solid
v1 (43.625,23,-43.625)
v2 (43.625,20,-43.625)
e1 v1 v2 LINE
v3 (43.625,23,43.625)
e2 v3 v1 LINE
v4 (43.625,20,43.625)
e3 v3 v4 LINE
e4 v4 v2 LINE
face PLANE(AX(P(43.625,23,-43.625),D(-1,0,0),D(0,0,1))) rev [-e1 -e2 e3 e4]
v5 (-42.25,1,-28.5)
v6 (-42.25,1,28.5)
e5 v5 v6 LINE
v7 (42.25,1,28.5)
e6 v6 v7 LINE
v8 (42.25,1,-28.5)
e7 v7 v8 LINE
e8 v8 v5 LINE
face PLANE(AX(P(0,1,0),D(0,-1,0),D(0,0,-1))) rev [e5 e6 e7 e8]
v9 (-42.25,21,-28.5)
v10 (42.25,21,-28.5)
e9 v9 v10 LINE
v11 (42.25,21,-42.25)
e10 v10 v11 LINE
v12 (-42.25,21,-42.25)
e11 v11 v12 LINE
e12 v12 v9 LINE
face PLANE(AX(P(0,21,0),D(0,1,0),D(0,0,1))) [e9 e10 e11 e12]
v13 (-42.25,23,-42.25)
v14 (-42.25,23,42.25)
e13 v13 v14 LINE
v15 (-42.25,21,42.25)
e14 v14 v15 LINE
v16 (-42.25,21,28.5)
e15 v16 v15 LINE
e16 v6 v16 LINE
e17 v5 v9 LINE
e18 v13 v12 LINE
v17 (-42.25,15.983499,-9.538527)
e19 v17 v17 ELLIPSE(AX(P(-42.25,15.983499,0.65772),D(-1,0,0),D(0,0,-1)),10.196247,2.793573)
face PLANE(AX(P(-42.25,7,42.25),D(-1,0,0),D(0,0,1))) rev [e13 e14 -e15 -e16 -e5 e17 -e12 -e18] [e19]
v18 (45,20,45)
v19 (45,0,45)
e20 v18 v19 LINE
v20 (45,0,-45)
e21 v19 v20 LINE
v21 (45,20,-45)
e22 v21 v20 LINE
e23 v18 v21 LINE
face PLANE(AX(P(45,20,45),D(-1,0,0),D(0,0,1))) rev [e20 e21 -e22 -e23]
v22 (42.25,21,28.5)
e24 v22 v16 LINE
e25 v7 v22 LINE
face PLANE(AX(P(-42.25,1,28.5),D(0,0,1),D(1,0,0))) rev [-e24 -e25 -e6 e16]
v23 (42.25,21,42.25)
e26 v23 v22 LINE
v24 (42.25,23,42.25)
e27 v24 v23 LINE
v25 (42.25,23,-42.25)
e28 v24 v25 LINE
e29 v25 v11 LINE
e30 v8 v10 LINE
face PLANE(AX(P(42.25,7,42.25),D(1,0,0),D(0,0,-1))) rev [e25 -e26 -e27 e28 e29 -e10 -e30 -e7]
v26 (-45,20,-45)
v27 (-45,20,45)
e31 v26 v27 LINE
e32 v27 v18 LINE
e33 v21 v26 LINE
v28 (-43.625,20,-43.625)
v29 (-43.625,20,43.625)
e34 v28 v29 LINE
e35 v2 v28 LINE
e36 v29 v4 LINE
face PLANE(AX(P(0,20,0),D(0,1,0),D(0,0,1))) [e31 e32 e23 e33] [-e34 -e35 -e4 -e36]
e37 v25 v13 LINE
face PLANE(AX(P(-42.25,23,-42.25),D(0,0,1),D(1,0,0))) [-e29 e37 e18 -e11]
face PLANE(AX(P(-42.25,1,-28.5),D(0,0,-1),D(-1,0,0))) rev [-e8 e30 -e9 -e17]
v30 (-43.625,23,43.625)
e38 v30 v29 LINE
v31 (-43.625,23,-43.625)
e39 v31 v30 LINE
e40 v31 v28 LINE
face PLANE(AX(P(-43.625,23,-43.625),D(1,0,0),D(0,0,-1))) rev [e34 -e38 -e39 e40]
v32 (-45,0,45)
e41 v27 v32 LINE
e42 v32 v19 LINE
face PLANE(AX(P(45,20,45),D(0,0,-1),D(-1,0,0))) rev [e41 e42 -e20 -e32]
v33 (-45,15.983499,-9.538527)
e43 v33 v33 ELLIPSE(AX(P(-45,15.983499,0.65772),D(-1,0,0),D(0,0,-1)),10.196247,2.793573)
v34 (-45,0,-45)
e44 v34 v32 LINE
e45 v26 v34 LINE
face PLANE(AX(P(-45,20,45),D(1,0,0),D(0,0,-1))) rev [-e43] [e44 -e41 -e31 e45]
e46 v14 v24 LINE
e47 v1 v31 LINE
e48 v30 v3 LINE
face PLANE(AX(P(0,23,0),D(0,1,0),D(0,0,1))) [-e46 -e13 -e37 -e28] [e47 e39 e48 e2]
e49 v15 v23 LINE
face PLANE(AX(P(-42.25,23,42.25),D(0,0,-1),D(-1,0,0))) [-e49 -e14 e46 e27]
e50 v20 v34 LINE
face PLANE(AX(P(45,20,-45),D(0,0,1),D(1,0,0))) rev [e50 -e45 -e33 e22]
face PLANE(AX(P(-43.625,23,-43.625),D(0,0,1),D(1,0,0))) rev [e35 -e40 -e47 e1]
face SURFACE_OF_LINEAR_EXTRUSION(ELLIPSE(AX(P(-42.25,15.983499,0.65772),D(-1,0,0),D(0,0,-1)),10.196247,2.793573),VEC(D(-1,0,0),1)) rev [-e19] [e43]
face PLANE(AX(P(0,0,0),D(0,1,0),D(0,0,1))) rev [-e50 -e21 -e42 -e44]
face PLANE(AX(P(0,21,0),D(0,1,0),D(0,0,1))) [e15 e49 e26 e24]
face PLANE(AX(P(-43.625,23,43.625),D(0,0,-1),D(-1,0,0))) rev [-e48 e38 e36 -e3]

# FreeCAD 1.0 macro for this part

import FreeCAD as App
import Part
import Sketcher

doc = App.newDocument("Part")
body = doc.addObject("PartDesign::Body", "Body")

# Sketch on XZ plane
sketch1 = doc.addObject("Sketcher::SketchObject", "Sketch")
body.addObject(sketch1)
sketch1.AttachmentSupport = (doc.XZ_Plane, [""])
sketch1.MapMode = "FlatFace"
sketch1.addGeometry([
    Part.LineSegment(App.Vector(-45, -45, 0), App.Vector(-45, 45, 0)),
    Part.LineSegment(App.Vector(-45, 45, 0), App.Vector(45, 45, 0)),
    Part.LineSegment(App.Vector(45, 45, 0), App.Vector(45, -45, 0)),
    Part.LineSegment(App.Vector(45, -45, 0), App.Vector(-45, -45, 0)),
], False)
sketch1.addConstraint([
    Sketcher.Constraint("Coincident", 0, 2, 1, 1),
    Sketcher.Constraint("Coincident", 1, 2, 2, 1),
    Sketcher.Constraint("Coincident", 2, 2, 3, 1),
    Sketcher.Constraint("Coincident", 3, 2, 0, 1),
    Sketcher.Constraint("Vertical", 0),
    Sketcher.Constraint("Horizontal", 1),
    Sketcher.Constraint("Vertical", 2),
    Sketcher.Constraint("Horizontal", 3),
    Sketcher.Constraint("Symmetric", 0, 2, 2, 2, -1, 1),
    Sketcher.Constraint("Equal", 3, 0),
    Sketcher.Constraint("DistanceX", 1, 1, 1, 2, 90.0),
])
pad1 = doc.addObject("PartDesign::Pad", "Pad")
body.addObject(pad1)
pad1.Profile = sketch1
pad1.Length = 20
pad1.Reversed = True

# Sketch on XZ plane
sketch2 = doc.addObject("Sketcher::SketchObject", "Sketch001")
body.addObject(sketch2)
sketch2.AttachmentSupport = (doc.XZ_Plane, [""])
sketch2.MapMode = "FlatFace"
sketch2.AttachmentOffset = App.Placement(App.Vector(0, 0, -20), App.Rotation())
sketch2.addGeometry([
    Part.LineSegment(App.Vector(-42.25, -42.25, 0), App.Vector(-42.25, 42.25, 0)),
    Part.LineSegment(App.Vector(-42.25, 42.25, 0), App.Vector(42.25, 42.25, 0)),
    Part.LineSegment(App.Vector(42.25, 42.25, 0), App.Vector(42.25, -42.25, 0)),
    Part.LineSegment(App.Vector(42.25, -42.25, 0), App.Vector(-42.25, -42.25, 0)),
], False)
sketch2.addConstraint([
    Sketcher.Constraint("Coincident", 0, 2, 1, 1),
    Sketcher.Constraint("Coincident", 1, 2, 2, 1),
    Sketcher.Constraint("Coincident", 2, 2, 3, 1),
    Sketcher.Constraint("Coincident", 3, 2, 0, 1),
    Sketcher.Constraint("Vertical", 0),
    Sketcher.Constraint("Horizontal", 1),
    Sketcher.Constraint("Vertical", 2),
    Sketcher.Constraint("Horizontal", 3),
    Sketcher.Constraint("Symmetric", 0, 2, 2, 2, -1, 1),
    Sketcher.Constraint("Equal", 3, 0),
    Sketcher.Constraint("DistanceX", 1, 1, 1, 2, 84.5),
])
pocket1 = doc.addObject("PartDesign::Pocket", "Pocket")
body.addObject(pocket1)
pocket1.Profile = sketch2
pocket1.Length = 13
pocket1.Reversed = True

# Sketch on XZ plane
sketch3 = doc.addObject("Sketcher::SketchObject", "Sketch002")
body.addObject(sketch3)
sketch3.AttachmentSupport = (doc.XZ_Plane, [""])
sketch3.MapMode = "FlatFace"
sketch3.AttachmentOffset = App.Placement(App.Vector(0, 0, -7), App.Rotation())
sketch3.addGeometry([
    Part.LineSegment(App.Vector(-42.25, -28.5, 0), App.Vector(-42.25, 28.5, 0)),
    Part.LineSegment(App.Vector(-42.25, 28.5, 0), App.Vector(42.25, 28.5, 0)),
    Part.LineSegment(App.Vector(42.25, 28.5, 0), App.Vector(42.25, -28.5, 0)),
    Part.LineSegment(App.Vector(42.25, -28.5, 0), App.Vector(-42.25, -28.5, 0)),
], False)
sketch3.addConstraint([
    Sketcher.Constraint("Coincident", 0, 2, 1, 1),
    Sketcher.Constraint("Coincident", 1, 2, 2, 1),
    Sketcher.Constraint("Coincident", 2, 2, 3, 1),
    Sketcher.Constraint("Coincident", 3, 2, 0, 1),
    Sketcher.Constraint("Vertical", 0),
    Sketcher.Constraint("Horizontal", 1),
    Sketcher.Constraint("Vertical", 2),
    Sketcher.Constraint("Horizontal", 3),
    Sketcher.Constraint("Symmetric", 0, 2, 2, 2, -1, 1),
    Sketcher.Constraint("DistanceY", 0, 1, 0, 2, 57.0),
    Sketcher.Constraint("DistanceX", 1, 1, 1, 2, 84.5),
])
pocket2 = doc.addObject("PartDesign::Pocket", "Pocket001")
body.addObject(pocket2)
pocket2.Profile = sketch3
pocket2.Length = 6
pocket2.Reversed = True

# Sketch on YZ plane
sketch4 = doc.addObject("Sketcher::SketchObject", "Sketch003")
body.addObject(sketch4)
sketch4.AttachmentSupport = (doc.YZ_Plane, [""])
sketch4.MapMode = "FlatFace"
sketch4.AttachmentOffset = App.Placement(App.Vector(0, 0, -45), App.Rotation())
sketch4.addGeometry(Part.Ellipse(App.Vector(15.983499, -9.538527, 0), App.Vector(18.777072, 0.65772, 0), App.Vector(15.983499, 0.65772, 0)), False)
sketch4.addConstraint(Sketcher.Constraint("Block", 0))
pocket3 = doc.addObject("PartDesign::Pocket", "Pocket002")
body.addObject(pocket3)
pocket3.Profile = sketch4
pocket3.Length = 2.75
pocket3.Reversed = True

# Sketch on XZ plane
sketch5 = doc.addObject("Sketcher::SketchObject", "Sketch004")
body.addObject(sketch5)
sketch5.AttachmentSupport = (doc.XZ_Plane, [""])
sketch5.MapMode = "FlatFace"
sketch5.AttachmentOffset = App.Placement(App.Vector(0, 0, -7), App.Rotation())
sketch5.addGeometry([
    Part.LineSegment(App.Vector(-42.25, -42.25, 0), App.Vector(-42.25, -28.5, 0)),  # 0
    Part.LineSegment(App.Vector(-42.25, -28.5, 0), App.Vector(42.25, -28.5, 0)),  # 1
    Part.LineSegment(App.Vector(42.25, -28.5, 0), App.Vector(42.25, -42.25, 0)),  # 2
    Part.LineSegment(App.Vector(42.25, -42.25, 0), App.Vector(-42.25, -42.25, 0)),  # 3
    Part.LineSegment(App.Vector(-42.25, 28.5, 0), App.Vector(-42.25, 42.25, 0)),  # 4
    Part.LineSegment(App.Vector(-42.25, 42.25, 0), App.Vector(42.25, 42.25, 0)),  # 5
    Part.LineSegment(App.Vector(42.25, 42.25, 0), App.Vector(42.25, 28.5, 0)),  # 6
    Part.LineSegment(App.Vector(42.25, 28.5, 0), App.Vector(-42.25, 28.5, 0)),  # 7
], False)
sketch5.addConstraint([
    Sketcher.Constraint("Coincident", 0, 2, 1, 1),
    Sketcher.Constraint("Coincident", 1, 2, 2, 1),
    Sketcher.Constraint("Coincident", 2, 2, 3, 1),
    Sketcher.Constraint("Coincident", 3, 2, 0, 1),
    Sketcher.Constraint("Coincident", 4, 2, 5, 1),
    Sketcher.Constraint("Coincident", 5, 2, 6, 1),
    Sketcher.Constraint("Coincident", 6, 2, 7, 1),
    Sketcher.Constraint("Coincident", 7, 2, 4, 1),
    Sketcher.Constraint("Vertical", 0),
    Sketcher.Constraint("Horizontal", 1),
    Sketcher.Constraint("Vertical", 2),
    Sketcher.Constraint("Horizontal", 3),
    Sketcher.Constraint("Vertical", 4),
    Sketcher.Constraint("Horizontal", 5),
    Sketcher.Constraint("Vertical", 6),
    Sketcher.Constraint("Horizontal", 7),
    Sketcher.Constraint("Symmetric", 2, 2, 4, 2, -1, 1),
    Sketcher.Constraint("Symmetric", 0, 2, 6, 2, -1, 1),
    Sketcher.Constraint("Vertical", 3, 2, 4, 2),
    Sketcher.Constraint("DistanceX", 1, 1, 1, 2, 84.5),
    Sketcher.Constraint("DistanceY", 1, 2, 6, 2, 57.0),
    Sketcher.Constraint("DistanceY", 0, 1, 0, 2, 13.75),
])
pad2 = doc.addObject("PartDesign::Pad", "Pad001")
body.addObject(pad2)
pad2.Profile = sketch5
pad2.Length = 14
pad2.Reversed = True

# Sketch on XZ plane
sketch6 = doc.addObject("Sketcher::SketchObject", "Sketch005")
body.addObject(sketch6)
sketch6.AttachmentSupport = (doc.XZ_Plane, [""])
sketch6.MapMode = "FlatFace"
sketch6.AttachmentOffset = App.Placement(App.Vector(0, 0, -20), App.Rotation())
sketch6.addGeometry([
    Part.LineSegment(App.Vector(-43.625, -43.625, 0), App.Vector(-43.625, 43.625, 0)),  # 0
    Part.LineSegment(App.Vector(-43.625, 43.625, 0), App.Vector(43.625, 43.625, 0)),  # 1
    Part.LineSegment(App.Vector(43.625, 43.625, 0), App.Vector(43.625, -43.625, 0)),  # 2
    Part.LineSegment(App.Vector(43.625, -43.625, 0), App.Vector(-43.625, -43.625, 0)),  # 3
    Part.LineSegment(App.Vector(42.25, 42.25, 0), App.Vector(-42.25, 42.25, 0)),  # 4
    Part.LineSegment(App.Vector(-42.25, 42.25, 0), App.Vector(-42.25, -42.25, 0)),  # 5
    Part.LineSegment(App.Vector(-42.25, -42.25, 0), App.Vector(42.25, -42.25, 0)),  # 6
    Part.LineSegment(App.Vector(42.25, -42.25, 0), App.Vector(42.25, 42.25, 0)),  # 7
], False)
sketch6.addConstraint([
    Sketcher.Constraint("Coincident", 0, 2, 1, 1),
    Sketcher.Constraint("Coincident", 1, 2, 2, 1),
    Sketcher.Constraint("Coincident", 2, 2, 3, 1),
    Sketcher.Constraint("Coincident", 3, 2, 0, 1),
    Sketcher.Constraint("Coincident", 4, 2, 5, 1),
    Sketcher.Constraint("Coincident", 5, 2, 6, 1),
    Sketcher.Constraint("Coincident", 6, 2, 7, 1),
    Sketcher.Constraint("Coincident", 7, 2, 4, 1),
    Sketcher.Constraint("Vertical", 0),
    Sketcher.Constraint("Horizontal", 1),
    Sketcher.Constraint("Vertical", 2),
    Sketcher.Constraint("Horizontal", 3),
    Sketcher.Constraint("Horizontal", 4),
    Sketcher.Constraint("Vertical", 5),
    Sketcher.Constraint("Horizontal", 6),
    Sketcher.Constraint("Vertical", 7),
    Sketcher.Constraint("Symmetric", 0, 2, 2, 2, -1, 1),
    Sketcher.Constraint("Symmetric", 4, 2, 6, 2, -1, 1),
    Sketcher.Constraint("Equal", 3, 0),
    Sketcher.Constraint("Equal", 6, 5),
    Sketcher.Constraint("DistanceX", 4, 2, 4, 1, 84.5),
    Sketcher.Constraint("DistanceX", 1, 1, 1, 2, 87.25),
])
pad3 = doc.addObject("PartDesign::Pad", "Pad002")
body.addObject(pad3)
pad3.Profile = sketch6
pad3.Length = 3
pad3.Reversed = True

doc.recompute()
